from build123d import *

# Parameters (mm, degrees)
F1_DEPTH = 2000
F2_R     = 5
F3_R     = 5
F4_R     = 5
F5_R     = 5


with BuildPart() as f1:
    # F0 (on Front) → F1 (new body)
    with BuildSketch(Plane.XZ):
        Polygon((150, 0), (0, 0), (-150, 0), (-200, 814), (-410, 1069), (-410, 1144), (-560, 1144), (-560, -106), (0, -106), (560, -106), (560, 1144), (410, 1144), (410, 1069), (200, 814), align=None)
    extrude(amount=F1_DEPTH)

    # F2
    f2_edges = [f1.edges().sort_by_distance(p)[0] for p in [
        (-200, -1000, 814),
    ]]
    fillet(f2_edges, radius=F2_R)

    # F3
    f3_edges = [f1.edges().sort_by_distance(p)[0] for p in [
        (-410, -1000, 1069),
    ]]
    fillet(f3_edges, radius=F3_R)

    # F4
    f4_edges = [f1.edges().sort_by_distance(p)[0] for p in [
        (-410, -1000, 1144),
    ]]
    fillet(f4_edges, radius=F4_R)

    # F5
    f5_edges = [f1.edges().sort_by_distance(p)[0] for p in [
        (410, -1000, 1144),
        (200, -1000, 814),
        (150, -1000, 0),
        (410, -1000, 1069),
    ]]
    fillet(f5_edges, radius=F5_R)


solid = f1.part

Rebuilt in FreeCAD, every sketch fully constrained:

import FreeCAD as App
import Part
import Sketcher
Q = App.Units.Quantity


def edges_at(feature, points):
    """Names of the edges that pass closest to the given points."""
    edges = feature.Shape.Edges
    near = lambda p: min(range(len(edges)), key=lambda i: edges[i].distToShape(Part.Vertex(*p))[0])
    return sorted({f"Edge{near(p) + 1}" for p in points})

doc = App.newDocument("Part")
body = doc.addObject("PartDesign::Body", "Body")

sketch1 = doc.addObject("Sketcher::SketchObject", "Sketch")
body.addObject(sketch1)
sketch1.AttachmentSupport = (doc.XZ_Plane, [""])
sketch1.MapMode = "FlatFace"
sketch1.addGeometry([
    Part.LineSegment(App.Vector(150, 0, 0), App.Vector(-150, 0, 0)),
    Part.LineSegment(App.Vector(-150, 0, 0), App.Vector(-200, 814, 0)),
    Part.LineSegment(App.Vector(-200, 814, 0), App.Vector(-410, 1069, 0)),
    Part.LineSegment(App.Vector(-410, 1069, 0), App.Vector(-410, 1144, 0)),
    Part.LineSegment(App.Vector(-410, 1144, 0), App.Vector(-560, 1144, 0)),
    Part.LineSegment(App.Vector(-560, 1144, 0), App.Vector(-560, -106, 0)),
    Part.LineSegment(App.Vector(-560, -106, 0), App.Vector(560, -106, 0)),
    Part.LineSegment(App.Vector(560, -106, 0), App.Vector(560, 1144, 0)),
    Part.LineSegment(App.Vector(560, 1144, 0), App.Vector(410, 1144, 0)),
    Part.LineSegment(App.Vector(410, 1144, 0), App.Vector(410, 1069, 0)),
    Part.LineSegment(App.Vector(410, 1069, 0), App.Vector(200, 814, 0)),
    Part.LineSegment(App.Vector(200, 814, 0), App.Vector(150, 0, 0)),
], False)
sketch1.addConstraint([
    Sketcher.Constraint("Coincident", 0, 2, 1, 1),
    Sketcher.Constraint("Coincident", 1, 2, 2, 1),
    Sketcher.Constraint("Coincident", 2, 2, 3, 1),
    Sketcher.Constraint("Coincident", 3, 2, 4, 1),
    Sketcher.Constraint("Coincident", 4, 2, 5, 1),
    Sketcher.Constraint("Coincident", 5, 2, 6, 1),
    Sketcher.Constraint("Coincident", 6, 2, 7, 1),
    Sketcher.Constraint("Coincident", 7, 2, 8, 1),
    Sketcher.Constraint("Coincident", 8, 2, 9, 1),
    Sketcher.Constraint("Coincident", 9, 2, 10, 1),
    Sketcher.Constraint("Coincident", 10, 2, 11, 1),
    Sketcher.Constraint("Coincident", 11, 2, 0, 1),
    Sketcher.Constraint("Horizontal", 0),
    Sketcher.Constraint("Vertical", 3),
    Sketcher.Constraint("Horizontal", 4),
    Sketcher.Constraint("Vertical", 5),
    Sketcher.Constraint("Horizontal", 6),
    Sketcher.Constraint("Vertical", 7),
    Sketcher.Constraint("Horizontal", 8),
    Sketcher.Constraint("Vertical", 9),
    Sketcher.Constraint("Symmetric", 0, 2, 11, 2, -1, 1),
    Sketcher.Constraint("Symmetric", 4, 2, 7, 2, -2),
    Sketcher.Constraint("Symmetric", 2, 2, 9, 2, -2),
    Sketcher.Constraint("Symmetric", 1, 2, 10, 2, -2),
    Sketcher.Constraint("DistanceX", 0, 2, 0, 1, Q("300 mm")),
    Sketcher.Constraint("DistanceX", 4, 2, 4, 1, Q("150 mm")),
    Sketcher.Constraint("DistanceX", 6, 1, 6, 2, Q("1120 mm")),
    Sketcher.Constraint("DistanceY", 3, 1, 3, 2, Q("75 mm")),
    Sketcher.Constraint("DistanceY", 5, 2, 5, 1, Q("1250 mm")),
    Sketcher.Constraint("DistanceX", 1, 2, -1, 1, Q("200 mm")),
    Sketcher.Constraint("DistanceY", -1, 1, 1, 2, Q("814 mm")),
    Sketcher.Constraint("DistanceY", -1, 1, 2, 2, Q("1069 mm")),
])
pad1 = doc.addObject("PartDesign::Pad", "Pad")
body.addObject(pad1)
pad1.Profile = sketch1
pad1.Length = 2000
doc.recompute()

fillet = doc.addObject("PartDesign::Fillet", "Fillet")
body.addObject(fillet)
fillet.Base = (pad1, edges_at(pad1, [(-200, -1000, 814)]))
fillet.Radius = 5
doc.recompute()

fillet2 = doc.addObject("PartDesign::Fillet", "Fillet001")
body.addObject(fillet2)
fillet2.Base = (fillet, edges_at(fillet, [(-410, -1000, 1069)]))
fillet2.Radius = 5
doc.recompute()

fillet3 = doc.addObject("PartDesign::Fillet", "Fillet002")
body.addObject(fillet3)
fillet3.Base = (fillet2, edges_at(fillet2, [(-410, -1000, 1144)]))
fillet3.Radius = 5
doc.recompute()

fillet4 = doc.addObject("PartDesign::Fillet", "Fillet003")
body.addObject(fillet4)
fillet4.Base = (fillet3, edges_at(fillet3, [
    (410, -1000, 1144),
    (200, -1000, 814),
    (150, -1000, 0),
    (410, -1000, 1069),
]))
fillet4.Radius = 5

doc.recompute()
